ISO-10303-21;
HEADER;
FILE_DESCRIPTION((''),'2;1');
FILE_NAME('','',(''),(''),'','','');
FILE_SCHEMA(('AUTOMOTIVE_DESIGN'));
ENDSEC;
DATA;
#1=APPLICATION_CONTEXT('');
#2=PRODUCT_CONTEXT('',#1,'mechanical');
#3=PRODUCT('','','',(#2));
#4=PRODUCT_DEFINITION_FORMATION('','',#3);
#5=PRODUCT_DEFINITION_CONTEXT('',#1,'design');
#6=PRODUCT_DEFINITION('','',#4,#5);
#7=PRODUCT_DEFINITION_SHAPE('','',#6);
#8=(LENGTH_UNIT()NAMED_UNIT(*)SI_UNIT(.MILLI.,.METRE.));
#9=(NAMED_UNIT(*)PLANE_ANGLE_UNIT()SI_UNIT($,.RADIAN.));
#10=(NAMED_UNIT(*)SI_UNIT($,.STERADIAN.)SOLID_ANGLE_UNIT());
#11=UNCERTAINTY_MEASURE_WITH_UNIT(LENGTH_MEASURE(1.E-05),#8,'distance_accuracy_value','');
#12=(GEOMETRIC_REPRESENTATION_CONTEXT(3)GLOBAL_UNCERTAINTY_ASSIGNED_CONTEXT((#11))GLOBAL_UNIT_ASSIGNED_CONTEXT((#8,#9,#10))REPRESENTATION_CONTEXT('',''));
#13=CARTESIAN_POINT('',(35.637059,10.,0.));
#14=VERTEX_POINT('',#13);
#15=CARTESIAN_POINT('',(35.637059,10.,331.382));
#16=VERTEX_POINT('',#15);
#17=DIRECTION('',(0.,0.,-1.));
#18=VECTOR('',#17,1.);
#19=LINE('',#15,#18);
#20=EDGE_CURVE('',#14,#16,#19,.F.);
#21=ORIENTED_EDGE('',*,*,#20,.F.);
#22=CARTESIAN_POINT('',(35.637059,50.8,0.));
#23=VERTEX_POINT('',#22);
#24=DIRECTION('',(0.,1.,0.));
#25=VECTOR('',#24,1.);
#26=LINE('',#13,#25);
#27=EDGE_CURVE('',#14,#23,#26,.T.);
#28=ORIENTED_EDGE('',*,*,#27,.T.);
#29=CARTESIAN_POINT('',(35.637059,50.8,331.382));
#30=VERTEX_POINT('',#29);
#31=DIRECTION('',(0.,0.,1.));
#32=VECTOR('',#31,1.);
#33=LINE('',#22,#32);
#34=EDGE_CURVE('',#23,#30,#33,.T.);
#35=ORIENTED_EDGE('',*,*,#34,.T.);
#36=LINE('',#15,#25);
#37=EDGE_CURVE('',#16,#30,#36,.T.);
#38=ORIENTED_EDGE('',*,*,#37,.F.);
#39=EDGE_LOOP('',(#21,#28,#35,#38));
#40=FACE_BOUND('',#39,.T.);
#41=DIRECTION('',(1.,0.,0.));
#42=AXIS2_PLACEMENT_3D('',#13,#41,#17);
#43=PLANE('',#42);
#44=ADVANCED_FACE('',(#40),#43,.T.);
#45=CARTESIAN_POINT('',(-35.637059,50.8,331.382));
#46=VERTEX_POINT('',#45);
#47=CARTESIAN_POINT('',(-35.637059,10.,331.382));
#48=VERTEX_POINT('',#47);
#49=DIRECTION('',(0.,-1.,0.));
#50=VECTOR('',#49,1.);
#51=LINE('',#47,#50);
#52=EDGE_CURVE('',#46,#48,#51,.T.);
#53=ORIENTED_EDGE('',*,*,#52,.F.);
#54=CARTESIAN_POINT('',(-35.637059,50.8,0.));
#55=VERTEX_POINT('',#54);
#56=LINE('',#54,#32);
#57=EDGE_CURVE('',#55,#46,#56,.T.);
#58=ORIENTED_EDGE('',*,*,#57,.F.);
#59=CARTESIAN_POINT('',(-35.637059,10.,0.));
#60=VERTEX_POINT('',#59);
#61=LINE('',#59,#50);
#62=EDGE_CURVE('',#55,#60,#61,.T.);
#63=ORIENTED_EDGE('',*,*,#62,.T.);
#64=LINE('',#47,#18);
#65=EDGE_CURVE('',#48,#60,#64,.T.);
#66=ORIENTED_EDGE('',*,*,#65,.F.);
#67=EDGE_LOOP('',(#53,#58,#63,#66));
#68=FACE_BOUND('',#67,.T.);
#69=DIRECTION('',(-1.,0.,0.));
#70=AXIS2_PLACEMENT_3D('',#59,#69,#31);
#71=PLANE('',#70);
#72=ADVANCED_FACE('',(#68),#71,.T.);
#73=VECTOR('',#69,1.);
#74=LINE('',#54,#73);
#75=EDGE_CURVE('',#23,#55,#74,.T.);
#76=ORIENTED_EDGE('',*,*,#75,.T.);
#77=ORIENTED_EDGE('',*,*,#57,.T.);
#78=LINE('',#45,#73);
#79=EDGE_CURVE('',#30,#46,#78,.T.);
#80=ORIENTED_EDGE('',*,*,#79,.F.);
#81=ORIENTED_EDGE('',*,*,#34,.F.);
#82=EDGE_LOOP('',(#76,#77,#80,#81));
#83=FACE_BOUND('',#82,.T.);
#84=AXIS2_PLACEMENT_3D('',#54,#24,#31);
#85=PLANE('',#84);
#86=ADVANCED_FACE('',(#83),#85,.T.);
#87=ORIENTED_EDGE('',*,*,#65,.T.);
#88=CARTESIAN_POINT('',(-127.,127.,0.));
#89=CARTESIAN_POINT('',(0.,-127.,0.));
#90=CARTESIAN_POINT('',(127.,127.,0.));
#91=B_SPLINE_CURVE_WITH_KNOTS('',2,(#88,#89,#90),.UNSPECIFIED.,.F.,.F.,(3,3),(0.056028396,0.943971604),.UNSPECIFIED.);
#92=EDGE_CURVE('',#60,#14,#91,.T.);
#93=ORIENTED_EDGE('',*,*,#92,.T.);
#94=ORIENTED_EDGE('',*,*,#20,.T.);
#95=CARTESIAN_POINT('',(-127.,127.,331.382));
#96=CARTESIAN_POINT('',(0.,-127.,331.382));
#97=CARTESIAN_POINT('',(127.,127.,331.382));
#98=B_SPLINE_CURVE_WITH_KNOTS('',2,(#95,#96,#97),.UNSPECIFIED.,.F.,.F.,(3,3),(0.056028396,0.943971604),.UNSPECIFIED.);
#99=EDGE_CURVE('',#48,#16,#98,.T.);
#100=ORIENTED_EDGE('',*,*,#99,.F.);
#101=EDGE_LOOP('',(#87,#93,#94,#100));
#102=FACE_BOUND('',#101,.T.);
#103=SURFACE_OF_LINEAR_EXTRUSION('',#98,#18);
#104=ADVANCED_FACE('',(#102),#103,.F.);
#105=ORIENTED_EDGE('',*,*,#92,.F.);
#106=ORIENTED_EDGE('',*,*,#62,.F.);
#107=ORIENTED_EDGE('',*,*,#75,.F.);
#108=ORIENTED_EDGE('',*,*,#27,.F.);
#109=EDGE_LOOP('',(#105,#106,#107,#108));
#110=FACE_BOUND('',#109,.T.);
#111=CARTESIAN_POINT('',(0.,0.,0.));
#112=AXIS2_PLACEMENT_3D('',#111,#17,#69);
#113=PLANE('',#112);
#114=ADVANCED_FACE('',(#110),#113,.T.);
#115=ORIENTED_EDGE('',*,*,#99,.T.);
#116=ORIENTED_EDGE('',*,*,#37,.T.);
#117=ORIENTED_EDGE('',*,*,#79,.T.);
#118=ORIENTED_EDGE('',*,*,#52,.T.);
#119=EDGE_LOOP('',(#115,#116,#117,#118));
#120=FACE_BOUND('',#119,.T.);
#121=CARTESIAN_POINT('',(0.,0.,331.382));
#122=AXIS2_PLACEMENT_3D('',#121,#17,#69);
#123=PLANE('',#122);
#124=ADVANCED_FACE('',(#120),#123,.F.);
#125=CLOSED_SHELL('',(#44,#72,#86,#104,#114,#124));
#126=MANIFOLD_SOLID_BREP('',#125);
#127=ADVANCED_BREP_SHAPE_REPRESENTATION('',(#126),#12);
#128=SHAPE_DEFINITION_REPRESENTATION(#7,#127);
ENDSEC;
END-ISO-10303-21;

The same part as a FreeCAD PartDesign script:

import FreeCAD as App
import Part
import Sketcher

V = App.Vector
Q = App.Units.Quantity

doc = App.newDocument("Part")
body = doc.addObject("PartDesign::Body", "Body")

# Sketch on XY plane
sketch1 = body.newObject("Sketcher::SketchObject", "Sketch")
sketch1.AttachmentSupport = (doc.getObject("XY_Plane"), [""])
sketch1.MapMode = "FlatFace"
sketch1.addGeometry(Part.LineSegment(V(127, 127, 0), V(-127, 127, 0)), False)
sketch1.addGeometry(Part.BSplineCurve([V(-127, 127, 0), V(0, -127, 0), V(127, 127, 0)], [3, 3], [0.056028396, 0.943971604], False, 2, [1, 1, 1], False), False)
sketch1.addConstraint(Sketcher.Constraint("Block", 1))
sketch1.addConstraint(Sketcher.Constraint("Coincident", 0, 1, 1, 2))
sketch1.addConstraint(Sketcher.Constraint("Coincident", 1, 1, 0, 2))
pad1 = body.newObject("PartDesign::Pad", "Pad")
pad1.Profile = sketch1
pad1.Length = 331.382

# Sketch on XY plane
sketch2 = body.newObject("Sketcher::SketchObject", "Sketch001")
sketch2.AttachmentSupport = (doc.getObject("XY_Plane"), [""])
sketch2.MapMode = "FlatFace"
sketch2.AttachmentOffset = App.Placement(V(0, 0, 331.382), App.Rotation())
sketch2.addGeometry(Part.LineSegment(V(-130, 130, 0), V(-130, 10, 0)), False)
sketch2.addGeometry(Part.LineSegment(V(-130, 10, 0), V(130, 10, 0)), False)
sketch2.addGeometry(Part.LineSegment(V(130, 10, 0), V(130, 130, 0)), False)
sketch2.addGeometry(Part.LineSegment(V(130, 130, 0), V(-130, 130, 0)), False)
sketch2.addConstraint(Sketcher.Constraint("Coincident", 0, 2, 1, 1))
sketch2.addConstraint(Sketcher.Constraint("Coincident", 1, 2, 2, 1))
sketch2.addConstraint(Sketcher.Constraint("Coincident", 2, 2, 3, 1))
sketch2.addConstraint(Sketcher.Constraint("Coincident", 3, 2, 0, 1))
sketch2.addConstraint(Sketcher.Constraint("Vertical", 0))
sketch2.addConstraint(Sketcher.Constraint("Horizontal", 1))
sketch2.addConstraint(Sketcher.Constraint("Vertical", 2))
sketch2.addConstraint(Sketcher.Constraint("Horizontal", 3))
sketch2.addConstraint(Sketcher.Constraint("DistanceX", 1, 1, 1, 2, Q("260 mm")))
sketch2.addConstraint(Sketcher.Constraint("DistanceY", 0, 2, 0, 1, Q("120 mm")))
sketch2.addConstraint(Sketcher.Constraint("DistanceX", 0, 2, -1, 1, Q("130 mm")))
sketch2.addConstraint(Sketcher.Constraint("DistanceY", -1, 1, 0, 2, Q("10 mm")))
pocket1 = body.newObject("PartDesign::Pocket", "Pocket")
pocket1.Profile = sketch2
pocket1.Type = "ThroughAll"

# Sketch on XY plane
sketch3 = body.newObject("Sketcher::SketchObject", "Sketch002")
sketch3.AttachmentSupport = (doc.getObject("XY_Plane"), [""])
sketch3.MapMode = "FlatFace"
sketch3.AttachmentOffset = App.Placement(V(0, 0, 331.382), App.Rotation())
sketch3.addGeometry(Part.LineSegment(V(-36, 51, 0), V(-36, 10, 0)), False)
sketch3.addGeometry(Part.LineSegment(V(-36, 10, 0), V(36, 10, 0)), False)
sketch3.addGeometry(Part.LineSegment(V(36, 10, 0), V(36, 51, 0)), False)
sketch3.addGeometry(Part.LineSegment(V(36, 51, 0), V(-36, 51, 0)), False)
sketch3.addConstraint(Sketcher.Constraint("Coincident", 0, 2, 1, 1))
sketch3.addConstraint(Sketcher.Constraint("Coincident", 1, 2, 2, 1))
sketch3.addConstraint(Sketcher.Constraint("Coincident", 2, 2, 3, 1))
sketch3.addConstraint(Sketcher.Constraint("Coincident", 3, 2, 0, 1))
sketch3.addConstraint(Sketcher.Constraint("Vertical", 0))
sketch3.addConstraint(Sketcher.Constraint("Horizontal", 1))
sketch3.addConstraint(Sketcher.Constraint("Vertical", 2))
sketch3.addConstraint(Sketcher.Constraint("Horizontal", 3))
sketch3.addConstraint(Sketcher.Constraint("DistanceY", 0, 2, 0, 1, Q("40.8 mm")))
sketch3.addConstraint(Sketcher.Constraint("DistanceY", -1, 1, 0, 2, Q("10 mm")))
sketch3.addConstraint(Sketcher.Constraint("DistanceX", 1, 1, 1, 2, Q("71.274119 mm")))
sketch3.addConstraint(Sketcher.Constraint("DistanceX", 0, 2, -1, 1, Q("35.637059 mm")))
pad2 = body.newObject("PartDesign::Pad", "Pad001")
pad2.Profile = sketch3
pad2.Length = 331.382
pad2.Reversed = True

doc.recompute()
